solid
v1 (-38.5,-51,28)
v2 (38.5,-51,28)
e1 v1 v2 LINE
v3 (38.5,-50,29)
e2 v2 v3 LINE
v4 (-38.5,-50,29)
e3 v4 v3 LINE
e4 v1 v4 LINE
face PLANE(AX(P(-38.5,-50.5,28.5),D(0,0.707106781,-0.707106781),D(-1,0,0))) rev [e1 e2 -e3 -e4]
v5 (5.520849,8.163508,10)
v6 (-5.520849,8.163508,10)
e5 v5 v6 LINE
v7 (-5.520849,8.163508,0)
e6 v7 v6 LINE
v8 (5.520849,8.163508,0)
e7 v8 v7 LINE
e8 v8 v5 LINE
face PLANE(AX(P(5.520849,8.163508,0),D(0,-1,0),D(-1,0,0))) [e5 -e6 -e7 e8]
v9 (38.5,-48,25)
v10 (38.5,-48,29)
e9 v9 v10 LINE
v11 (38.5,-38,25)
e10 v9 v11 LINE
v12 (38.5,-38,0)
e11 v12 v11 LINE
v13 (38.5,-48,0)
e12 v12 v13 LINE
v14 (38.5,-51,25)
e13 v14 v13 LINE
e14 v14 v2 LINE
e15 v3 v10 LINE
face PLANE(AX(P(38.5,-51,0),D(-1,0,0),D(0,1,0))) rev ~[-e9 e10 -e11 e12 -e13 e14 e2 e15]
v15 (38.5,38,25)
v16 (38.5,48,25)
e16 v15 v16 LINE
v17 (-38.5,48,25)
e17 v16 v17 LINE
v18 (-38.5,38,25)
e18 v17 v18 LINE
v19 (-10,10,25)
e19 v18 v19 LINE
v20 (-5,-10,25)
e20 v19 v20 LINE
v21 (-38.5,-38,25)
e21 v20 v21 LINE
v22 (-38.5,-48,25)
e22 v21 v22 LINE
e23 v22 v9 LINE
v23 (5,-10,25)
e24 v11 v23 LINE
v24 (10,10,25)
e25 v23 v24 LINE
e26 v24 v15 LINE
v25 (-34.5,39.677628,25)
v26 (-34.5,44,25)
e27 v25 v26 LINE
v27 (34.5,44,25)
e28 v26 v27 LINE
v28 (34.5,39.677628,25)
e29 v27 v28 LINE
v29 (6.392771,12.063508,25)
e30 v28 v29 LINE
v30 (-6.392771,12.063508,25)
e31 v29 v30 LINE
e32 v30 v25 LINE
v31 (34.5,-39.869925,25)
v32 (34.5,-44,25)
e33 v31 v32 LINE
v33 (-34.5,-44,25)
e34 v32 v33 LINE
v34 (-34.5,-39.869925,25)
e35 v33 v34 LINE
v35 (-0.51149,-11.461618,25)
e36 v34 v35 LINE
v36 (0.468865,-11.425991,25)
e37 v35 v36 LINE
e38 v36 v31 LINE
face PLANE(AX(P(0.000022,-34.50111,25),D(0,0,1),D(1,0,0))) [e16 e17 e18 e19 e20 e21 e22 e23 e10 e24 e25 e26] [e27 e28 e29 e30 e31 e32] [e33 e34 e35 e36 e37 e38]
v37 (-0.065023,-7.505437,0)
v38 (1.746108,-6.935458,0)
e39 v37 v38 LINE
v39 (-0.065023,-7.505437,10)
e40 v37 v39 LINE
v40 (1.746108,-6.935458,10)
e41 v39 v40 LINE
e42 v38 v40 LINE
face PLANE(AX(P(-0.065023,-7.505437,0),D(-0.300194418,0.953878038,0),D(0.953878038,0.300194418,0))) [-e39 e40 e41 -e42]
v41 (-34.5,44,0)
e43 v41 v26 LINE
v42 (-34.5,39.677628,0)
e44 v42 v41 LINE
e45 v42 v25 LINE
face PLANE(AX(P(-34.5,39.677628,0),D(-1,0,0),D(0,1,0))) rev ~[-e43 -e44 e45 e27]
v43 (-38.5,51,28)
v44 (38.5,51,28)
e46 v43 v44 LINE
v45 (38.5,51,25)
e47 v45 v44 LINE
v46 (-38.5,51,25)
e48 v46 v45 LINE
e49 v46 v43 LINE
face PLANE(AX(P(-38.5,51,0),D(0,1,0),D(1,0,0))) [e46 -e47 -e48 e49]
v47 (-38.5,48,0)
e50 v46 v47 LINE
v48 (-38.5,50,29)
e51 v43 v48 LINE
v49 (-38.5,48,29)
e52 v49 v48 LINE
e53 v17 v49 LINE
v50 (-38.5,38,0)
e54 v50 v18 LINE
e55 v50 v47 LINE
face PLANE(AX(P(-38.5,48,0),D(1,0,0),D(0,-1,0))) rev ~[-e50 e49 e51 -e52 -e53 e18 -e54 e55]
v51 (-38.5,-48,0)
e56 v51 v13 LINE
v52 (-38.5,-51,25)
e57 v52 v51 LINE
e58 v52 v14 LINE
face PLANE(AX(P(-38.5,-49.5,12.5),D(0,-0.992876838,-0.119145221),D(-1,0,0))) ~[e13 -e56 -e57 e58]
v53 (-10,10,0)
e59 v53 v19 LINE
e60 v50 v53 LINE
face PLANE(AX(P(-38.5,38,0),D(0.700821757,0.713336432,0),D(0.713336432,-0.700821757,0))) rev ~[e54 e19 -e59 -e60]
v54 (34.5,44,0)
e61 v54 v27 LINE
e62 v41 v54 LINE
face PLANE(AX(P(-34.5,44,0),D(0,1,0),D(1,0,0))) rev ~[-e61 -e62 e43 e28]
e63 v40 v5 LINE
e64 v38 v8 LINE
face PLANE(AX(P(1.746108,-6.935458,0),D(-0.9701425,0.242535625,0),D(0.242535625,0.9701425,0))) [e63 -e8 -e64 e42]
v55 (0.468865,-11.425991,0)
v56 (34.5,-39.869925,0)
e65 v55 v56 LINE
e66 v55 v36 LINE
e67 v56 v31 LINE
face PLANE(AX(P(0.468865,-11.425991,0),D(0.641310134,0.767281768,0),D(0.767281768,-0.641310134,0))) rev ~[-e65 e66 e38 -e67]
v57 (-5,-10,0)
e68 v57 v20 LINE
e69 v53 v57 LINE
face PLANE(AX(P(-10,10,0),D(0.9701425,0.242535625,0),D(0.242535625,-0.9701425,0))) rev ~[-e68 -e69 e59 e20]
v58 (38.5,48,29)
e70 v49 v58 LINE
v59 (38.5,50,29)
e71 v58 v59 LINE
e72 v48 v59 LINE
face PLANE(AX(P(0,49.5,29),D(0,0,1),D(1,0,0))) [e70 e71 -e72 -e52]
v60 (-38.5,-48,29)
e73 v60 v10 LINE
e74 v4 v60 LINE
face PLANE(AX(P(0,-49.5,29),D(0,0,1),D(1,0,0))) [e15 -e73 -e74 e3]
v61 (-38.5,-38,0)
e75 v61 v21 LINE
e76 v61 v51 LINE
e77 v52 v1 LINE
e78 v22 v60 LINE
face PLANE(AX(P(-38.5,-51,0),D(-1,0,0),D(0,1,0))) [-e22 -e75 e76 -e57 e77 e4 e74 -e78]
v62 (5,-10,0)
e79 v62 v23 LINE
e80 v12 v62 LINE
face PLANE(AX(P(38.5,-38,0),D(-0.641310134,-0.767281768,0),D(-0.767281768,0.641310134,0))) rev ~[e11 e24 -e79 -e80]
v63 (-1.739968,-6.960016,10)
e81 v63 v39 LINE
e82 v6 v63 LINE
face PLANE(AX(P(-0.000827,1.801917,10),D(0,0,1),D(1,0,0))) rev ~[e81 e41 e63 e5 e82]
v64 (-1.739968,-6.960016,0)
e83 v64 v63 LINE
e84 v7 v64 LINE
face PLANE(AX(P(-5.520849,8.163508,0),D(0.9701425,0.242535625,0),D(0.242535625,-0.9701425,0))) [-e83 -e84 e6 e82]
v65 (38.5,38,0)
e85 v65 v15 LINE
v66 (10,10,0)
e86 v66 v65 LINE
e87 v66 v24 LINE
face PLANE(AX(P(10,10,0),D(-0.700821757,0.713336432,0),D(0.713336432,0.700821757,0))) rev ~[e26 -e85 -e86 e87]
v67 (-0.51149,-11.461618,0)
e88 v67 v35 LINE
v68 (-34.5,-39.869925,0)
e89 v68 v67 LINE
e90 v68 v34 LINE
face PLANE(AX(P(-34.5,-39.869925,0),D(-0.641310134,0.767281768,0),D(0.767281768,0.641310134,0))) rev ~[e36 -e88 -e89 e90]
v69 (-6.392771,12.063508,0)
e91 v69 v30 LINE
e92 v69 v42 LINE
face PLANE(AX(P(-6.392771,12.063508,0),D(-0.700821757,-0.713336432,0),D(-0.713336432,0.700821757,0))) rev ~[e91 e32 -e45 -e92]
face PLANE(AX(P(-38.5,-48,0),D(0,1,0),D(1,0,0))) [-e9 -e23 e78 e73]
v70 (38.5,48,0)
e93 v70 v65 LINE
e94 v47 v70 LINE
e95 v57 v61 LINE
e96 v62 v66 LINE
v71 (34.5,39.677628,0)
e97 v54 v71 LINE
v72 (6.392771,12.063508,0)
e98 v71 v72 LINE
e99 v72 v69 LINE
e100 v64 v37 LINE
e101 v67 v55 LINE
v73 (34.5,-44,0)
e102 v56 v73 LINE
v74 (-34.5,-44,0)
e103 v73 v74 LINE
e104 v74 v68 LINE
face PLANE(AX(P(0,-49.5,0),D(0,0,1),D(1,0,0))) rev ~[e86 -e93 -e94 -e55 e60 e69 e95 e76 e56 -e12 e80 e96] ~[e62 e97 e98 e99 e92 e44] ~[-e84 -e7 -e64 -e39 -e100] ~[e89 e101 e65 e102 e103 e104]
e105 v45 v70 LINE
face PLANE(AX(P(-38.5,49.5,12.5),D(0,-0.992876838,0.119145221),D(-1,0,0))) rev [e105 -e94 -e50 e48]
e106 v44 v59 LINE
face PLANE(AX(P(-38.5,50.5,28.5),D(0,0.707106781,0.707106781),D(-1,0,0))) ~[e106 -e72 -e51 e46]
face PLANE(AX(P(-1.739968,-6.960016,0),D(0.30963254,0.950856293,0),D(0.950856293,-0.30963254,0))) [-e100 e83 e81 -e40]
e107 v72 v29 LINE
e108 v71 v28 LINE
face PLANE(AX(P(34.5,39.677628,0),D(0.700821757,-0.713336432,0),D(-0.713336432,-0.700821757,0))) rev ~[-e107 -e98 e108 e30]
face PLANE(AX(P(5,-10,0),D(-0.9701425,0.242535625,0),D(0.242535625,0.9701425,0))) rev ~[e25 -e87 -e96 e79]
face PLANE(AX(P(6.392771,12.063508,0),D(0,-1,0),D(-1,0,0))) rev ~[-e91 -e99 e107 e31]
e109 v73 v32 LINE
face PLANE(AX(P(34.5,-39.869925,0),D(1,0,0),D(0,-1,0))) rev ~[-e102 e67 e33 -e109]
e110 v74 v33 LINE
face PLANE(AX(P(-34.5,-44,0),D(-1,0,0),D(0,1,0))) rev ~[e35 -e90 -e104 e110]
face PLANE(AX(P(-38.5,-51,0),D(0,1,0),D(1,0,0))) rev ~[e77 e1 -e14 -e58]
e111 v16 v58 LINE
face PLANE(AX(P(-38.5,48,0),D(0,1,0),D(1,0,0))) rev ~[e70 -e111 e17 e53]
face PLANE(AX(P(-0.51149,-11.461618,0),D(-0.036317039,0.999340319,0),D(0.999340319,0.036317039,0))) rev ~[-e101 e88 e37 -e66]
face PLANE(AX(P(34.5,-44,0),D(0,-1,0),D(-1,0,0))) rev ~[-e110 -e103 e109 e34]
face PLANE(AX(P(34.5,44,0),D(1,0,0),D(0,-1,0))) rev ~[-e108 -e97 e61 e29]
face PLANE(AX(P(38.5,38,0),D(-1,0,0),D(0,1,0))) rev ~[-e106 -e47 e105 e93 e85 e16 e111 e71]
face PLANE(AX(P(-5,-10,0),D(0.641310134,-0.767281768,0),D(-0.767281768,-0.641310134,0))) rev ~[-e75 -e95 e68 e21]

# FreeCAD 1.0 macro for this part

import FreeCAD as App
import Part
import Sketcher
from FreeCAD import Vector
Q = App.Units.Quantity


def edges_at(feature, points):
    """Names of the edges that pass closest to the given points."""
    edges = feature.Shape.Edges
    near = lambda p: min(range(len(edges)), key=lambda i: edges[i].distToShape(Part.Vertex(*p))[0])
    return sorted({f"Edge{near(p) + 1}" for p in points})

doc = App.newDocument("Part")
body = doc.addObject("PartDesign::Body", "Body")

# Sketch on XY plane
sketch1 = body.newObject("Sketcher::SketchObject", "Sketch")
sketch1.AttachmentSupport = (doc.getObject("XY_Plane"), [""])
sketch1.MapMode = "FlatFace"
sketch1.addGeometry(Part.LineSegment(Vector(-38.5, -38, 0), Vector(-38.5, -48, 0)), False)
sketch1.addGeometry(Part.LineSegment(Vector(-38.5, -48, 0), Vector(38.5, -48, 0)), False)
sketch1.addGeometry(Part.LineSegment(Vector(38.5, -48, 0), Vector(38.5, -38, 0)), False)
sketch1.addGeometry(Part.LineSegment(Vector(38.5, -38, 0), Vector(5, -10, 0)), False)
sketch1.addGeometry(Part.LineSegment(Vector(5, -10, 0), Vector(10, 10, 0)), False)
sketch1.addGeometry(Part.LineSegment(Vector(10, 10, 0), Vector(38.5, 38, 0)), False)
sketch1.addGeometry(Part.LineSegment(Vector(38.5, 38, 0), Vector(38.5, 48, 0)), False)
sketch1.addGeometry(Part.LineSegment(Vector(38.5, 48, 0), Vector(-38.5, 48, 0)), False)
sketch1.addGeometry(Part.LineSegment(Vector(-38.5, 48, 0), Vector(-38.5, 38, 0)), False)
sketch1.addGeometry(Part.LineSegment(Vector(-38.5, 38, 0), Vector(-10, 10, 0)), False)
sketch1.addGeometry(Part.LineSegment(Vector(-10, 10, 0), Vector(-5, -10, 0)), False)
sketch1.addGeometry(Part.LineSegment(Vector(-5, -10, 0), Vector(-38.5, -38, 0)), False)
sketch1.addGeometry(Part.LineSegment(Vector(6.4, 12.1, 0), Vector(-6.4, 12.1, 0)), False)
sketch1.addGeometry(Part.LineSegment(Vector(-6.4, 12.1, 0), Vector(-34.5, 39.7, 0)), False)
sketch1.addGeometry(Part.LineSegment(Vector(-34.5, 39.7, 0), Vector(-34.5, 44, 0)), False)
sketch1.addGeometry(Part.LineSegment(Vector(-34.5, 44, 0), Vector(34.5, 44, 0)), False)
sketch1.addGeometry(Part.LineSegment(Vector(34.5, 44, 0), Vector(34.5, 39.7, 0)), False)
sketch1.addGeometry(Part.LineSegment(Vector(34.5, 39.7, 0), Vector(6.4, 12.1, 0)), False)
sketch1.addGeometry(Part.LineSegment(Vector(0.5, -11.4, 0), Vector(34.5, -39.9, 0)), False)
sketch1.addGeometry(Part.LineSegment(Vector(34.5, -39.9, 0), Vector(34.5, -44, 0)), False)
sketch1.addGeometry(Part.LineSegment(Vector(34.5, -44, 0), Vector(-34.5, -44, 0)), False)
sketch1.addGeometry(Part.LineSegment(Vector(-34.5, -44, 0), Vector(-34.5, -39.9, 0)), False)
sketch1.addGeometry(Part.LineSegment(Vector(-34.5, -39.9, 0), Vector(-0.5, -11.5, 0)), False)
sketch1.addGeometry(Part.LineSegment(Vector(-0.5, -11.5, 0), Vector(0.5, -11.4, 0)), False)
sketch1.addConstraint(Sketcher.Constraint("Coincident", 0, 2, 1, 1))
sketch1.addConstraint(Sketcher.Constraint("Coincident", 1, 2, 2, 1))
sketch1.addConstraint(Sketcher.Constraint("Coincident", 2, 2, 3, 1))
sketch1.addConstraint(Sketcher.Constraint("Coincident", 3, 2, 4, 1))
sketch1.addConstraint(Sketcher.Constraint("Coincident", 4, 2, 5, 1))
sketch1.addConstraint(Sketcher.Constraint("Coincident", 5, 2, 6, 1))
sketch1.addConstraint(Sketcher.Constraint("Coincident", 6, 2, 7, 1))
sketch1.addConstraint(Sketcher.Constraint("Coincident", 7, 2, 8, 1))
sketch1.addConstraint(Sketcher.Constraint("Coincident", 8, 2, 9, 1))
sketch1.addConstraint(Sketcher.Constraint("Coincident", 9, 2, 10, 1))
sketch1.addConstraint(Sketcher.Constraint("Coincident", 10, 2, 11, 1))
sketch1.addConstraint(Sketcher.Constraint("Coincident", 11, 2, 0, 1))
sketch1.addConstraint(Sketcher.Constraint("Coincident", 12, 2, 13, 1))
sketch1.addConstraint(Sketcher.Constraint("Coincident", 13, 2, 14, 1))
sketch1.addConstraint(Sketcher.Constraint("Coincident", 14, 2, 15, 1))
sketch1.addConstraint(Sketcher.Constraint("Coincident", 15, 2, 16, 1))
sketch1.addConstraint(Sketcher.Constraint("Coincident", 16, 2, 17, 1))
sketch1.addConstraint(Sketcher.Constraint("Coincident", 17, 2, 12, 1))
sketch1.addConstraint(Sketcher.Constraint("Coincident", 18, 2, 19, 1))
sketch1.addConstraint(Sketcher.Constraint("Coincident", 19, 2, 20, 1))
sketch1.addConstraint(Sketcher.Constraint("Coincident", 20, 2, 21, 1))
sketch1.addConstraint(Sketcher.Constraint("Coincident", 21, 2, 22, 1))
sketch1.addConstraint(Sketcher.Constraint("Coincident", 22, 2, 23, 1))
sketch1.addConstraint(Sketcher.Constraint("Coincident", 23, 2, 18, 1))
sketch1.addConstraint(Sketcher.Constraint("Vertical", 0))
sketch1.addConstraint(Sketcher.Constraint("Horizontal", 1))
sketch1.addConstraint(Sketcher.Constraint("Vertical", 2))
sketch1.addConstraint(Sketcher.Constraint("Vertical", 6))
sketch1.addConstraint(Sketcher.Constraint("Horizontal", 7))
sketch1.addConstraint(Sketcher.Constraint("Vertical", 8))
sketch1.addConstraint(Sketcher.Constraint("Horizontal", 12))
sketch1.addConstraint(Sketcher.Constraint("Vertical", 14))
sketch1.addConstraint(Sketcher.Constraint("Horizontal", 15))
sketch1.addConstraint(Sketcher.Constraint("Vertical", 16))
sketch1.addConstraint(Sketcher.Constraint("Vertical", 19))
sketch1.addConstraint(Sketcher.Constraint("Horizontal", 20))
sketch1.addConstraint(Sketcher.Constraint("Vertical", 21))
sketch1.addConstraint(Sketcher.Constraint("Symmetric", 0, 2, 6, 2, -1, 1))
sketch1.addConstraint(Sketcher.Constraint("Symmetric", 2, 2, 8, 2, -1, 1))
sketch1.addConstraint(Sketcher.Constraint("Symmetric", 14, 2, 19, 2, -1, 1))
sketch1.addConstraint(Sketcher.Constraint("Symmetric", 5, 2, 8, 2, -2))
sketch1.addConstraint(Sketcher.Constraint("Symmetric", 4, 2, 9, 2, -2))
sketch1.addConstraint(Sketcher.Constraint("Symmetric", 3, 2, 10, 2, -2))
sketch1.addConstraint(Sketcher.Constraint("Symmetric", 13, 2, 16, 2, -2))
sketch1.addConstraint(Sketcher.Constraint("Symmetric", 18, 2, 21, 2, -2))
sketch1.addConstraint(Sketcher.Constraint("Parallel", 9, 13))
sketch1.addConstraint(Sketcher.Constraint("Parallel", 5, 17))
sketch1.addConstraint(Sketcher.Constraint("Parallel", 3, 18))
sketch1.addConstraint(Sketcher.Constraint("Parallel", 11, 22))
sketch1.addConstraint(Sketcher.Constraint("Horizontal", 2, 2, 11, 2))
sketch1.addConstraint(Sketcher.Constraint("DistanceX", 1, 1, 1, 2, Q("77 mm")))
sketch1.addConstraint(Sketcher.Constraint("DistanceX", 15, 1, 15, 2, Q("69 mm")))
sketch1.addConstraint(Sketcher.Constraint("DistanceY", 0, 2, 0, 1, Q("10 mm")))
sketch1.addConstraint(Sketcher.Constraint("DistanceY", 0, 2, -1, 1, Q("48 mm")))
sketch1.addConstraint(Sketcher.Constraint("DistanceX", -1, 1, 3, 2, Q("5 mm")))
sketch1.addConstraint(Sketcher.Constraint("DistanceY", 3, 2, -1, 1, Q("10 mm")))
sketch1.addConstraint(Sketcher.Constraint("DistanceX", -1, 1, 4, 2, Q("10 mm")))
sketch1.addConstraint(Sketcher.Constraint("DistanceY", -1, 1, 4, 2, Q("10 mm")))
sketch1.addConstraint(Sketcher.Constraint("DistanceY", -1, 1, 14, 2, Q("44 mm")))
sketch1.addConstraint(Sketcher.Constraint("Distance", 23, Q("0.981002 mm")))
sketch1.addConstraint(Sketcher.Constraint("Distance", 22, Q("44.297299 mm")))
sketch1.addConstraint(Sketcher.Constraint("DistanceX", 12, 2, 12, 1, Q("12.785543 mm")))
sketch1.addConstraint(Sketcher.Constraint("DistanceY", 14, 1, 14, 2, Q("4.322372 mm")))
sketch1.addConstraint(Sketcher.Constraint("DistanceY", 19, 2, 19, 1, Q("4.130075 mm")))
pad1 = body.newObject("PartDesign::Pad", "Pad")
pad1.Profile = sketch1
pad1.Length = 25

# Sketch on XY plane
sketch2 = body.newObject("Sketcher::SketchObject", "Sketch001")
sketch2.AttachmentSupport = (doc.getObject("XY_Plane"), [""])
sketch2.MapMode = "FlatFace"
sketch2.addGeometry(Part.LineSegment(Vector(-0.1, -7.5, 0), Vector(1.7, -6.9, 0)), False)
sketch2.addGeometry(Part.LineSegment(Vector(1.7, -6.9, 0), Vector(5.5, 8.2, 0)), False)
sketch2.addGeometry(Part.LineSegment(Vector(5.5, 8.2, 0), Vector(-5.5, 8.2, 0)), False)
sketch2.addGeometry(Part.LineSegment(Vector(-5.5, 8.2, 0), Vector(-1.7, -7, 0)), False)
sketch2.addGeometry(Part.LineSegment(Vector(-1.7, -7, 0), Vector(-0.1, -7.5, 0)), False)
sketch2.addConstraint(Sketcher.Constraint("Coincident", 0, 2, 1, 1))
sketch2.addConstraint(Sketcher.Constraint("Coincident", 1, 2, 2, 1))
sketch2.addConstraint(Sketcher.Constraint("Coincident", 2, 2, 3, 1))
sketch2.addConstraint(Sketcher.Constraint("Coincident", 3, 2, 4, 1))
sketch2.addConstraint(Sketcher.Constraint("Coincident", 4, 2, 0, 1))
sketch2.addConstraint(Sketcher.Constraint("Horizontal", 2))
sketch2.addConstraint(Sketcher.Constraint("DistanceX", 2, 2, 2, 1, Q("11.041698 mm")))
sketch2.addConstraint(Sketcher.Constraint("Distance", 1, Q("15.563658 mm")))
sketch2.addConstraint(Sketcher.Constraint("DistanceX", -1, 1, 1, 2, Q("5.520849 mm")))
sketch2.addConstraint(Sketcher.Constraint("DistanceY", -1, 1, 1, 2, Q("8.163508 mm")))
sketch2.addConstraint(Sketcher.Constraint("DistanceX", 3, 2, -1, 1, Q("1.739968 mm")))
sketch2.addConstraint(Sketcher.Constraint("DistanceX", 0, 2, 1, 2, Q("3.774742 mm")))
sketch2.addConstraint(Sketcher.Constraint("DistanceY", 3, 2, 0, 2, Q("0.024558 mm")))
sketch2.addConstraint(Sketcher.Constraint("DistanceY", 4, 2, 3, 2, Q("0.545422 mm")))
sketch2.addConstraint(Sketcher.Constraint("DistanceX", 4, 2, 0, 2, Q("1.81113 mm")))
pocket1 = body.newObject("PartDesign::Pocket", "Pocket")
pocket1.Profile = sketch2
pocket1.Length = 10
pocket1.Reversed = True

# Sketch on XY plane
sketch3 = body.newObject("Sketcher::SketchObject", "Sketch002")
sketch3.AttachmentSupport = (doc.getObject("XY_Plane"), [""])
sketch3.MapMode = "FlatFace"
sketch3.addGeometry(Part.LineSegment(Vector(-38.5, -48, 0), Vector(-38.5, -51, 0)), False)
sketch3.addGeometry(Part.LineSegment(Vector(-38.5, -51, 0), Vector(38.5, -51, 0)), False)
sketch3.addGeometry(Part.LineSegment(Vector(38.5, -51, 0), Vector(38.5, -48, 0)), False)
sketch3.addGeometry(Part.LineSegment(Vector(38.5, -48, 0), Vector(-38.5, -48, 0)), False)
sketch3.addGeometry(Part.LineSegment(Vector(-38.5, 51, 0), Vector(-38.5, 48, 0)), False)
sketch3.addGeometry(Part.LineSegment(Vector(-38.5, 48, 0), Vector(38.5, 48, 0)), False)
sketch3.addGeometry(Part.LineSegment(Vector(38.5, 48, 0), Vector(38.5, 51, 0)), False)
sketch3.addGeometry(Part.LineSegment(Vector(38.5, 51, 0), Vector(-38.5, 51, 0)), False)
sketch3.addConstraint(Sketcher.Constraint("Coincident", 0, 2, 1, 1))
sketch3.addConstraint(Sketcher.Constraint("Coincident", 1, 2, 2, 1))
sketch3.addConstraint(Sketcher.Constraint("Coincident", 2, 2, 3, 1))
sketch3.addConstraint(Sketcher.Constraint("Coincident", 3, 2, 0, 1))
sketch3.addConstraint(Sketcher.Constraint("Coincident", 4, 2, 5, 1))
sketch3.addConstraint(Sketcher.Constraint("Coincident", 5, 2, 6, 1))
sketch3.addConstraint(Sketcher.Constraint("Coincident", 6, 2, 7, 1))
sketch3.addConstraint(Sketcher.Constraint("Coincident", 7, 2, 4, 1))
sketch3.addConstraint(Sketcher.Constraint("Vertical", 0))
sketch3.addConstraint(Sketcher.Constraint("Horizontal", 1))
sketch3.addConstraint(Sketcher.Constraint("Vertical", 2))
sketch3.addConstraint(Sketcher.Constraint("Horizontal", 3))
sketch3.addConstraint(Sketcher.Constraint("Vertical", 4))
sketch3.addConstraint(Sketcher.Constraint("Horizontal", 5))
sketch3.addConstraint(Sketcher.Constraint("Vertical", 6))
sketch3.addConstraint(Sketcher.Constraint("Horizontal", 7))
sketch3.addConstraint(Sketcher.Constraint("Symmetric", 2, 2, 4, 2, -1, 1))
sketch3.addConstraint(Sketcher.Constraint("Symmetric", 0, 2, 6, 2, -1, 1))
sketch3.addConstraint(Sketcher.Constraint("Vertical", 3, 2, 4, 2))
sketch3.addConstraint(Sketcher.Constraint("DistanceX", 1, 1, 1, 2, Q("77 mm")))
sketch3.addConstraint(Sketcher.Constraint("DistanceY", 0, 2, 0, 1, Q("3 mm")))
sketch3.addConstraint(Sketcher.Constraint("DistanceY", 0, 2, -1, 1, Q("51 mm")))
pad2 = body.newObject("PartDesign::Pad", "Pad001")
pad2.Profile = sketch3
pad2.Length = 29
doc.recompute()

chamfer = body.newObject("PartDesign::Chamfer", "Chamfer")
chamfer.Base = (pad2, edges_at(pad2, [(0, -51, 0)]))
chamfer.ChamferType = "Two distances"
chamfer.Size = 25
chamfer.Size2 = 3
doc.recompute()

chamfer2 = body.newObject("PartDesign::Chamfer", "Chamfer001")
chamfer2.Base = (chamfer, edges_at(chamfer, [(0, 51, 0)]))
chamfer2.ChamferType = "Two distances"
chamfer2.Size = 25
chamfer2.Size2 = 3
chamfer2.FlipDirection = True
doc.recompute()

chamfer3 = body.newObject("PartDesign::Chamfer", "Chamfer002")
chamfer3.Base = (chamfer2, edges_at(chamfer2, [(0, -51, 29), (0, 51, 29)]))
chamfer3.Size = 1

doc.recompute()
